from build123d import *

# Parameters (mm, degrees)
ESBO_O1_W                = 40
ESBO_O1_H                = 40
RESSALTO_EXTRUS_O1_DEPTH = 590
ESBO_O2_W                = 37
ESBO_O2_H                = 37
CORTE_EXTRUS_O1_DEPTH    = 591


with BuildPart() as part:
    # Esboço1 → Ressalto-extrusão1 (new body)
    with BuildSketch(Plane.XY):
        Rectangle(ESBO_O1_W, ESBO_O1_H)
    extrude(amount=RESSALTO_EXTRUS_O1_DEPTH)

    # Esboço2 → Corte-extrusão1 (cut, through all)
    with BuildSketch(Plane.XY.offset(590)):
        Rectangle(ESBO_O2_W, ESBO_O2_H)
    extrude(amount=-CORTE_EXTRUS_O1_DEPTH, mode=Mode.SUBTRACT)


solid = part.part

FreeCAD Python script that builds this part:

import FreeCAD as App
import Part
import Sketcher

V = App.Vector
Q = App.Units.Quantity


def add_polygon(sketch, points):
    """Adds a closed chain of lines whose ends are joined by coincident constraints."""
    first, n = sketch.GeometryCount, len(points)
    for a, b in zip(points, points[1:] + points[:1]):
        sketch.addGeometry(Part.LineSegment(App.Vector(*a, 0), App.Vector(*b, 0)), False)
    for i in range(n):
        sketch.addConstraint(Sketcher.Constraint("Coincident", first + i, 2, first + (i + 1) % n, 1))

doc = App.newDocument("Part")
body = doc.addObject("PartDesign::Body", "Body")

# Sketch on XY plane
sketch1 = body.newObject("Sketcher::SketchObject", "Sketch")
sketch1.AttachmentSupport = (doc.getObject("XY_Plane"), [""])
sketch1.MapMode = "FlatFace"
add_polygon(sketch1, [(-20, 20), (-20, -20), (20, -20), (20, 20)])  # lines 0-3
sketch1.addConstraint([
    Sketcher.Constraint("Vertical", 0),
    Sketcher.Constraint("Horizontal", 1),
    Sketcher.Constraint("Vertical", 2),
    Sketcher.Constraint("Horizontal", 3),
    Sketcher.Constraint("Symmetric", 0, 2, 2, 2, -1, 1),
    Sketcher.Constraint("Equal", 3, 0),
    Sketcher.Constraint("DistanceX", 1, 1, 1, 2, Q("40 mm")),
])
pad1 = body.newObject("PartDesign::Pad", "Pad")
pad1.Profile = sketch1
pad1.Length = 590

# Sketch on XY plane
sketch2 = body.newObject("Sketcher::SketchObject", "Sketch001")
sketch2.AttachmentSupport = (doc.getObject("XY_Plane"), [""])
sketch2.MapMode = "FlatFace"
sketch2.AttachmentOffset = App.Placement(V(0, 0, 590), App.Rotation())
add_polygon(sketch2, [(-18, 18), (-18, -18), (18, -18), (18, 18)])  # lines 0-3
sketch2.addConstraint([
    Sketcher.Constraint("Vertical", 0),
    Sketcher.Constraint("Horizontal", 1),
    Sketcher.Constraint("Vertical", 2),
    Sketcher.Constraint("Horizontal", 3),
    Sketcher.Constraint("Symmetric", 0, 2, 2, 2, -1, 1),
    Sketcher.Constraint("Equal", 3, 0),
    Sketcher.Constraint("DistanceX", 1, 1, 1, 2, Q("37 mm")),
])
pocket1 = body.newObject("PartDesign::Pocket", "Pocket")
pocket1.Profile = sketch2
pocket1.Type = "ThroughAll"

doc.recompute()
